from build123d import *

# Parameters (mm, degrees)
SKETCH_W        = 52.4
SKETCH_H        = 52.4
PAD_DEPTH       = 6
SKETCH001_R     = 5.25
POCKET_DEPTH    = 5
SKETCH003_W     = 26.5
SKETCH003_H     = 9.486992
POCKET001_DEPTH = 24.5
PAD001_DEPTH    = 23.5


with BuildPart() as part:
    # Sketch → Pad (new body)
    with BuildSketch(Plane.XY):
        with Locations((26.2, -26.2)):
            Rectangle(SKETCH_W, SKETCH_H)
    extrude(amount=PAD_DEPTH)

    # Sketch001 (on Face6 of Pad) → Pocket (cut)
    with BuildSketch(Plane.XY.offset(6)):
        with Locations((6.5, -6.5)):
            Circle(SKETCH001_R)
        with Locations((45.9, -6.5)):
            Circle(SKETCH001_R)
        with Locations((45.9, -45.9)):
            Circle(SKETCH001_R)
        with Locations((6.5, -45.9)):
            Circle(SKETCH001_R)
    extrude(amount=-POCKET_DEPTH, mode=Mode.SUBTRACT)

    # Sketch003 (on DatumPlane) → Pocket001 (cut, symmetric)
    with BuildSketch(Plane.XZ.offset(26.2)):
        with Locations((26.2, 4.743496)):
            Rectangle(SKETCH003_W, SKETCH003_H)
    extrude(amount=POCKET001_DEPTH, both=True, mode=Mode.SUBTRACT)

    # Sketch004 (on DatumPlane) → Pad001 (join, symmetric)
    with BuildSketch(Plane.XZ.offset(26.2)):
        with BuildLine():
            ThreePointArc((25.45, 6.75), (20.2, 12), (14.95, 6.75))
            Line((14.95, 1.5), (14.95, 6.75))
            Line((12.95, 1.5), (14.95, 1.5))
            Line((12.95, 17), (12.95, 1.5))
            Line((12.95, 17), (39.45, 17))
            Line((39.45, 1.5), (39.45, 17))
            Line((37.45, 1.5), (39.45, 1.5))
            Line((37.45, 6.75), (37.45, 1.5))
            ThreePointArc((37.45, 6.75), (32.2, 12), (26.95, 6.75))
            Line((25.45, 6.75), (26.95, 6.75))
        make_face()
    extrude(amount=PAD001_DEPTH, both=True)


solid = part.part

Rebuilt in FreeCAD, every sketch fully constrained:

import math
import FreeCAD as App
import Part
import Sketcher
from FreeCAD import Vector
Q = App.Units.Quantity

doc = App.newDocument("Part")
params = doc.addObject("Spreadsheet::Sheet", "Params")
for row, (alias, value) in enumerate([
    ("sketch1_width", "52.4 mm"),
    ("pad1_length", "6 mm"),
    ("sketch2_diameter", "10.5 mm"),
    ("pocket1_length", "5 mm"),
    ("sketch3_width", "26.5 mm"),
    ("pocket2_length", "49 mm"),
    ("sketch4_width", "2 mm"),
    ("sketch4_radius", "5.25 mm"),
    ("sketch4_width2", "1.5 mm"),
    ("sketch4_height", "15.5 mm"),
    ("sketch4_height2", "5.25 mm"),
    ("pad2_length", "47 mm"),
], start=1):
    params.set(f"A{row}", alias)
    params.set(f"B{row}", "=" + value)
    params.setAlias(f"B{row}", alias)

body = doc.addObject("PartDesign::Body", "Body")

sketch1 = body.newObject("Sketcher::SketchObject", "Sketch")
sketch1.AttachmentSupport = (doc.getObject("XY_Plane"), [""])
sketch1.MapMode = "FlatFace"
sketch1.addGeometry([
    Part.LineSegment(Vector(0, 0, 0), Vector(0, -52, 0)),
    Part.LineSegment(Vector(0, -52, 0), Vector(52, -52, 0)),
    Part.LineSegment(Vector(52, -52, 0), Vector(52, 0, 0)),
    Part.LineSegment(Vector(52, 0, 0), Vector(0, 0, 0)),
], False)
sketch1.addConstraint([
    Sketcher.Constraint("Coincident", 0, 2, 1, 1),
    Sketcher.Constraint("Coincident", 1, 2, 2, 1),
    Sketcher.Constraint("Coincident", 2, 2, 3, 1),
    Sketcher.Constraint("Coincident", 3, 2, 0, 1),
    Sketcher.Constraint("Vertical", 0),
    Sketcher.Constraint("Horizontal", 1),
    Sketcher.Constraint("Vertical", 2),
    Sketcher.Constraint("Horizontal", 3),
    Sketcher.Constraint("Coincident", 3, 2, -1, 1),
    Sketcher.Constraint("Equal", 3, 0),
    Sketcher.Constraint("DistanceX", 1, 1, 1, 2, Q("52.4 mm")),
])
sketch1.setExpression("Constraints[10]", "Params.sketch1_width")
pad1 = body.newObject("PartDesign::Pad", "Pad")
pad1.Profile = sketch1
pad1.setExpression("Length", "Params.pad1_length")

sketch2 = body.newObject("Sketcher::SketchObject", "Sketch001")
sketch2.AttachmentSupport = (doc.getObject("XY_Plane"), [""])
sketch2.MapMode = "FlatFace"
sketch2.AttachmentOffset = App.Placement(Vector(0, 0, 6), App.Rotation())
sketch2.addGeometry([
    Part.Circle(Vector(6, -6, 0), Vector(0, 0, 1), 5),
    Part.Circle(Vector(46, -6, 0), Vector(0, 0, 1), 5),
    Part.Circle(Vector(46, -46, 0), Vector(0, 0, 1), 5),
    Part.Circle(Vector(6, -46, 0), Vector(0, 0, 1), 5),
], False)
sketch2.addConstraint([
    Sketcher.Constraint("Equal", 0, 1),
    Sketcher.Constraint("Equal", 1, 2),
    Sketcher.Constraint("Equal", 2, 3),
    Sketcher.Constraint("Horizontal", 0, 3, 1, 3),
    Sketcher.Constraint("Horizontal", 2, 3, 3, 3),
    Sketcher.Constraint("Vertical", 1, 3, 2, 3),
    Sketcher.Constraint("Vertical", 0, 3, 3, 3),
    Sketcher.Constraint("Diameter", 0, Q("10.5 mm")),
    Sketcher.Constraint("DistanceX", -1, 1, 0, 3, Q("6.5 mm")),
    Sketcher.Constraint("DistanceY", 0, 3, -1, 1, Q("6.5 mm")),
    Sketcher.Constraint("DistanceX", -1, 1, 1, 3, Q("45.9 mm")),
    Sketcher.Constraint("DistanceY", 2, 3, -1, 1, Q("45.9 mm")),
])
sketch2.setExpression("Constraints[7]", "Params.sketch2_diameter")
pocket1 = body.newObject("PartDesign::Pocket", "Pocket")
pocket1.Profile = sketch2
pocket1.setExpression("Length", "Params.pocket1_length")

sketch3 = body.newObject("Sketcher::SketchObject", "Sketch002")
sketch3.AttachmentSupport = (doc.getObject("XZ_Plane"), [""])
sketch3.MapMode = "FlatFace"
sketch3.AttachmentOffset = App.Placement(Vector(0, 0, 26.2), App.Rotation())
sketch3.addGeometry([
    Part.LineSegment(Vector(13, 9, 0), Vector(13, 0, 0)),
    Part.LineSegment(Vector(13, 0, 0), Vector(39, 0, 0)),
    Part.LineSegment(Vector(39, 0, 0), Vector(39, 9, 0)),
    Part.LineSegment(Vector(39, 9, 0), Vector(13, 9, 0)),
], False)
sketch3.addConstraint([
    Sketcher.Constraint("Coincident", 0, 2, 1, 1),
    Sketcher.Constraint("Coincident", 1, 2, 2, 1),
    Sketcher.Constraint("Coincident", 2, 2, 3, 1),
    Sketcher.Constraint("Coincident", 3, 2, 0, 1),
    Sketcher.Constraint("Vertical", 0),
    Sketcher.Constraint("Horizontal", 1),
    Sketcher.Constraint("Vertical", 2),
    Sketcher.Constraint("Horizontal", 3),
    Sketcher.Constraint("PointOnObject", 0, 2, -1),
    Sketcher.Constraint("DistanceX", 1, 1, 1, 2, Q("26.5 mm")),
    Sketcher.Constraint("DistanceX", -1, 1, 0, 2, Q("12.95 mm")),
    Sketcher.Constraint("DistanceY", 0, 2, 0, 1, Q("9.486992 mm")),
])
sketch3.setExpression("Constraints[9]", "Params.sketch3_width")
pocket2 = body.newObject("PartDesign::Pocket", "Pocket001")
pocket2.Profile = sketch3
pocket2.setExpression("Length", "Params.pocket2_length")
pocket2.Midplane = True

sketch4 = body.newObject("Sketcher::SketchObject", "Sketch003")
sketch4.AttachmentSupport = (doc.getObject("XZ_Plane"), [""])
sketch4.MapMode = "FlatFace"
sketch4.AttachmentOffset = App.Placement(Vector(0, 0, 26.2), App.Rotation())
sketch4.addGeometry([
    Part.ArcOfCircle(Part.Circle(Vector(20.2, 6.8, 0), Vector(0, 0, 1), 5.2), math.radians(0), math.radians(180)),
    Part.LineSegment(Vector(25.4, 6.8, 0), Vector(26.9, 6.8, 0)),
    Part.ArcOfCircle(Part.Circle(Vector(32.2, 6.8, 0), Vector(0, 0, 1), 5.2), math.radians(0), math.radians(180)),
    Part.LineSegment(Vector(37.5, 6.8, 0), Vector(37.5, 1.5, 0)),
    Part.LineSegment(Vector(37.5, 1.5, 0), Vector(39.5, 1.5, 0)),
    Part.LineSegment(Vector(39.5, 1.5, 0), Vector(39.5, 17, 0)),
    Part.LineSegment(Vector(39.5, 17, 0), Vector(12.9, 17, 0)),
    Part.LineSegment(Vector(12.9, 17, 0), Vector(12.9, 1.5, 0)),
    Part.LineSegment(Vector(12.9, 1.5, 0), Vector(14.9, 1.5, 0)),
    Part.LineSegment(Vector(14.9, 1.5, 0), Vector(14.9, 6.8, 0)),
], False)
sketch4.addConstraint([
    Sketcher.Constraint("Coincident", 0, 1, 1, 1),
    Sketcher.Constraint("Coincident", 1, 2, 2, 2),
    Sketcher.Constraint("Tangent", 2, 1, 3, 1),
    Sketcher.Constraint("Coincident", 3, 2, 4, 1),
    Sketcher.Constraint("Coincident", 4, 2, 5, 1),
    Sketcher.Constraint("Coincident", 5, 2, 6, 1),
    Sketcher.Constraint("Coincident", 6, 2, 7, 1),
    Sketcher.Constraint("Coincident", 7, 2, 8, 1),
    Sketcher.Constraint("Coincident", 8, 2, 9, 1),
    Sketcher.Constraint("Tangent", 9, 2, 0, 2),
    Sketcher.Constraint("Horizontal", 1),
    Sketcher.Constraint("Vertical", 3),
    Sketcher.Constraint("Horizontal", 4),
    Sketcher.Constraint("Vertical", 5),
    Sketcher.Constraint("Horizontal", 6),
    Sketcher.Constraint("Vertical", 7),
    Sketcher.Constraint("Horizontal", 8),
    Sketcher.Constraint("Vertical", 9),
    Sketcher.Constraint("Equal", 0, 2),
    Sketcher.Constraint("Horizontal", 0, 3, 2, 3),
    Sketcher.Constraint("Horizontal", 2, 3, 0, 1),
    Sketcher.Constraint("Horizontal", 4, 2, 7, 2),
    Sketcher.Constraint("Equal", 4, 8),
    Sketcher.Constraint("DistanceX", 4, 1, 4, 2, Q("2 mm")),
    Sketcher.Constraint("Radius", 0, Q("5.25 mm")),
    Sketcher.Constraint("DistanceX", 1, 1, 1, 2, Q("1.5 mm")),
    Sketcher.Constraint("DistanceY", 5, 1, 5, 2, Q("15.5 mm")),
    Sketcher.Constraint("DistanceY", -1, 1, 5, 2, Q("17 mm")),
    Sketcher.Constraint("DistanceY", 3, 2, 3, 1, Q("5.25 mm")),
    Sketcher.Constraint("DistanceX", -1, 1, 0, 3, Q("20.2 mm")),
])
sketch4.setExpression("Constraints[23]", "Params.sketch4_width")
sketch4.setExpression("Constraints[24]", "Params.sketch4_radius")
sketch4.setExpression("Constraints[25]", "Params.sketch4_width2")
sketch4.setExpression("Constraints[26]", "Params.sketch4_height")
sketch4.setExpression("Constraints[28]", "Params.sketch4_height2")
pad2 = body.newObject("PartDesign::Pad", "Pad001")
pad2.Profile = sketch4
pad2.setExpression("Length", "Params.pad2_length")
pad2.Midplane = True

doc.recompute()
